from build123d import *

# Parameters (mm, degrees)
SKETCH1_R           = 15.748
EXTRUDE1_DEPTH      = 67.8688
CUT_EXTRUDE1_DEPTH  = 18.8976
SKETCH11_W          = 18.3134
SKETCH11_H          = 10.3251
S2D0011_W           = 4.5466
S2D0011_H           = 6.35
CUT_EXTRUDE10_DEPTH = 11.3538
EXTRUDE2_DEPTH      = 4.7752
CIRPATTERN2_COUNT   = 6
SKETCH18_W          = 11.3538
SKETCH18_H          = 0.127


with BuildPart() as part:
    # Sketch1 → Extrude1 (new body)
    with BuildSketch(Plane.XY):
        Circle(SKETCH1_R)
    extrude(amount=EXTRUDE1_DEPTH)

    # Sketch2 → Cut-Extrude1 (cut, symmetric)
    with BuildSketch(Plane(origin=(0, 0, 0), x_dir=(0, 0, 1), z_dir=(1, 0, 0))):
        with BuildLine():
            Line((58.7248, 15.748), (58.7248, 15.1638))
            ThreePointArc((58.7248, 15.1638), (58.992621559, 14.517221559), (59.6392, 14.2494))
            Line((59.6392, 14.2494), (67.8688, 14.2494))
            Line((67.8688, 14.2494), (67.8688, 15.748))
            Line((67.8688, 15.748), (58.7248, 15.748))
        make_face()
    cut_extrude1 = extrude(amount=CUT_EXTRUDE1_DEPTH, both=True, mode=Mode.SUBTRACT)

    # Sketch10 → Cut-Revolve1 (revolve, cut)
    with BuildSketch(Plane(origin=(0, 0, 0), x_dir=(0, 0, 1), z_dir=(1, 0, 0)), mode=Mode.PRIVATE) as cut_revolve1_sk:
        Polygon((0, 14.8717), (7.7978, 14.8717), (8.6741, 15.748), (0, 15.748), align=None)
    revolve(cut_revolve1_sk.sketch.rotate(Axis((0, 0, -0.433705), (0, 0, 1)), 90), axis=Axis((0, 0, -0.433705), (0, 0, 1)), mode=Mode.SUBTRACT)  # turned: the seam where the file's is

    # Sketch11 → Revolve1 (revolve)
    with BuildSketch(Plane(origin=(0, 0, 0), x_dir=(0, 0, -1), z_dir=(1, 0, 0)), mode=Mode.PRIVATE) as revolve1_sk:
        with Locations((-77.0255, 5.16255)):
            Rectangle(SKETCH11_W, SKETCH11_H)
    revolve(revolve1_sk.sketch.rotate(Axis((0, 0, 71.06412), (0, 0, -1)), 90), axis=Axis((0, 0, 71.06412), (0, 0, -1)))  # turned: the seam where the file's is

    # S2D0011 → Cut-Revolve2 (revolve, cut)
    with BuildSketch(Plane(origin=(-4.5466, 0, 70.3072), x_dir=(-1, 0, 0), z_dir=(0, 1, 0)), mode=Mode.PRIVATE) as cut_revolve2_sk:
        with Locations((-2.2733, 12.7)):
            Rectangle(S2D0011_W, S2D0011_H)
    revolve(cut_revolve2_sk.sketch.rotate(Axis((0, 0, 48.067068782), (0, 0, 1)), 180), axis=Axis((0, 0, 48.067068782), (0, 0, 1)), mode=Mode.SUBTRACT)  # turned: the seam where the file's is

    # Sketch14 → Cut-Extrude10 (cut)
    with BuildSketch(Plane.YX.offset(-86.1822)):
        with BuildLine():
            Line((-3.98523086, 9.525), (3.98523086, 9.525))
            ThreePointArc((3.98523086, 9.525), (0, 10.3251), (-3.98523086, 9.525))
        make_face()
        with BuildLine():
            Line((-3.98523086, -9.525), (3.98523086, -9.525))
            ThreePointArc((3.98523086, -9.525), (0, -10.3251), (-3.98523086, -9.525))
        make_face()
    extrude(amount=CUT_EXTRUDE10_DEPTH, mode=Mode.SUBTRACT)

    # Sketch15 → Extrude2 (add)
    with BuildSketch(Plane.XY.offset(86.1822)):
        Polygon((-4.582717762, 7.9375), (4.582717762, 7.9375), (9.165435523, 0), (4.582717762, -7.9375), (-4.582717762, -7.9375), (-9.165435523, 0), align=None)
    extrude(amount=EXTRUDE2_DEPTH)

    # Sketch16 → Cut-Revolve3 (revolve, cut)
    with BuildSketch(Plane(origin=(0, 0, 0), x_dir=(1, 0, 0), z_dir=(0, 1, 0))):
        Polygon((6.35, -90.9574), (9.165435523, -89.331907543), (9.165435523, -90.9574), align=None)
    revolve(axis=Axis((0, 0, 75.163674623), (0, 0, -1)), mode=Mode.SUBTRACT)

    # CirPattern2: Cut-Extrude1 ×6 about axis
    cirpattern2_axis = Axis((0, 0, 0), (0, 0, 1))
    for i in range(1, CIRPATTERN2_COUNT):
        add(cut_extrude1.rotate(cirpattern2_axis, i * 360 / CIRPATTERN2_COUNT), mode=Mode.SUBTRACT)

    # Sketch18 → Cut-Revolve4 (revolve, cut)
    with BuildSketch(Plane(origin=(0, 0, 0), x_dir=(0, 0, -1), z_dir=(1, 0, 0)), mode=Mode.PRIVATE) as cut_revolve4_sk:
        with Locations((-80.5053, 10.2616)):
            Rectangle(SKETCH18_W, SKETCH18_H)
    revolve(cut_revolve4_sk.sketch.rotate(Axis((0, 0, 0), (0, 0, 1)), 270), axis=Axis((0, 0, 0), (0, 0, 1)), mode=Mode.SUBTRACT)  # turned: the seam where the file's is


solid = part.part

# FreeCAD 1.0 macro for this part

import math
import FreeCAD as App
import Part
import Sketcher
from FreeCAD import Vector
Q = App.Units.Quantity


def add_polygon(sketch, points):
    """Adds a closed chain of lines whose ends are joined by coincident constraints."""
    first, n = sketch.GeometryCount, len(points)
    for a, b in zip(points, points[1:] + points[:1]):
        sketch.addGeometry(Part.LineSegment(App.Vector(*a, 0), App.Vector(*b, 0)), False)
    for i in range(n):
        sketch.addConstraint(Sketcher.Constraint("Coincident", first + i, 2, first + (i + 1) % n, 1))

doc = App.newDocument("Part")
body = doc.addObject("PartDesign::Body", "Body")

sketch1 = body.newObject("Sketcher::SketchObject", "Sketch")
sketch1.AttachmentSupport = (doc.getObject("XY_Plane"), [""])
sketch1.MapMode = "FlatFace"
sketch1.addGeometry(Part.Circle(Vector(0, 0, 0), Vector(0, 0, 1), 16), False)
sketch1.addConstraint([
    Sketcher.Constraint("Coincident", 0, 3, -1, 1),
    Sketcher.Constraint("Diameter", 0, Q("1.24 in")),
])
pad1 = body.newObject("PartDesign::Pad", "Pad")
pad1.Profile = sketch1
pad1.Length = Q("2.672 in")

sketch2 = body.newObject("Sketcher::SketchObject", "Sketch001")
sketch2.AttachmentSupport = (doc.getObject("YZ_Plane"), [""])
sketch2.MapMode = "FlatFace"
sketch2.addGeometry([
    Part.LineSegment(Vector(-15.7, 58.7, 0), Vector(-15.2, 58.7, 0)),
    Part.ArcOfCircle(Part.Circle(Vector(-15.2, 59.6, 0), Vector(0, 0, 1), 0.9), math.radians(-90), math.radians(0)),
    Part.LineSegment(Vector(-14.2, 59.6, 0), Vector(-14.2, 67.9, 0)),
    Part.LineSegment(Vector(-14.2, 67.9, 0), Vector(-15.7, 67.9, 0)),
    Part.LineSegment(Vector(-15.7, 67.9, 0), Vector(-15.7, 58.7, 0)),
], False)
sketch2.addConstraint([
    Sketcher.Constraint("Tangent", 0, 2, 1, 1),
    Sketcher.Constraint("Tangent", 1, 2, 2, 1),
    Sketcher.Constraint("Coincident", 2, 2, 3, 1),
    Sketcher.Constraint("Coincident", 3, 2, 4, 1),
    Sketcher.Constraint("Coincident", 4, 2, 0, 1),
    Sketcher.Constraint("Horizontal", 0),
    Sketcher.Constraint("Vertical", 2),
    Sketcher.Constraint("Horizontal", 3),
    Sketcher.Constraint("Vertical", 4),
    Sketcher.Constraint("Radius", 1, Q("0.036 in")),
    Sketcher.Constraint("DistanceY", 4, 2, 4, 1, Q("0.36 in")),
    Sketcher.Constraint("DistanceX", 0, 1, 0, 2, Q("0.023 in")),
    Sketcher.Constraint("DistanceX", 3, 2, -1, 1, Q("0.62 in")),
    Sketcher.Constraint("DistanceY", -1, 1, 1, 3, Q("2.348 in")),
])
pocket1 = body.newObject("PartDesign::Pocket", "Pocket")
pocket1.Profile = sketch2
pocket1.Length = Q("1.488 in")
pocket1.Midplane = True

sketch3 = body.newObject("Sketcher::SketchObject", "Sketch002")
sketch3.AttachmentSupport = (doc.getObject("YZ_Plane"), [""])
sketch3.MapMode = "FlatFace"
add_polygon(sketch3, [(-14.9, 0), (-14.9, 7.8), (-15.7, 8.7), (-15.7, 0)])
sketch3.addConstraint([
    Sketcher.Constraint("Vertical", 0),
    Sketcher.Constraint("Vertical", 2),
    Sketcher.Constraint("Horizontal", 3),
    Sketcher.Constraint("PointOnObject", 2, 2, -1),
    Sketcher.Constraint("Angle", 1, Q("135 deg")),
    Sketcher.Constraint("DistanceY", 0, 1, 0, 2, Q("0.307 in")),
    Sketcher.Constraint("DistanceX", 1, 2, -1, 1, Q("0.62 in")),
    Sketcher.Constraint("DistanceX", 3, 1, 3, 2, Q("0.0345 in")),
])
groove = body.newObject("PartDesign::Groove", "Groove")
groove.Profile = sketch3
groove.ReferenceAxis = (sketch3, ["V_Axis"])
groove.Angle = 360

sketch4 = body.newObject("Sketcher::SketchObject", "Sketch003")
sketch4.AttachmentSupport = (doc.getObject("YZ_Plane"), [""])
sketch4.MapMode = "FlatFace"
add_polygon(sketch4, [(10, 86), (0, 86), (0, 68), (10, 68)])
sketch4.addConstraint([
    Sketcher.Constraint("Horizontal", 0),
    Sketcher.Constraint("Vertical", 1),
    Sketcher.Constraint("Horizontal", 2),
    Sketcher.Constraint("Vertical", 3),
    Sketcher.Constraint("PointOnObject", 0, 2, -2),
    Sketcher.Constraint("DistanceY", 1, 2, 1, 1, Q("0.721 in")),
    Sketcher.Constraint("DistanceX", 0, 2, 0, 1, Q("0.4065 in")),
    Sketcher.Constraint("DistanceY", -1, 1, 0, 2, Q("3.393 in")),
])
revolution = body.newObject("PartDesign::Revolution", "Revolution")
revolution.Profile = sketch4
revolution.ReferenceAxis = (sketch4, ["V_Axis"])
revolution.Angle = 360

sketch5 = body.newObject("Sketcher::SketchObject", "Sketch004")
sketch5.AttachmentSupport = (doc.getObject("XZ_Plane"), [""])
sketch5.MapMode = "FlatFace"
add_polygon(sketch5, [(0, 86.2), (0, 79.8), (-4.5, 79.8), (-4.5, 86.2)])
sketch5.addConstraint([
    Sketcher.Constraint("Vertical", 0),
    Sketcher.Constraint("Horizontal", 1),
    Sketcher.Constraint("Vertical", 2),
    Sketcher.Constraint("Horizontal", 3),
    Sketcher.Constraint("PointOnObject", 0, 2, -2),
    Sketcher.Constraint("DistanceY", 0, 2, 0, 1, Q("0.25 in")),
    Sketcher.Constraint("DistanceX", 1, 2, 1, 1, Q("0.179 in")),
    Sketcher.Constraint("DistanceY", -1, 1, 0, 2, Q("3.143 in")),
])
groove2 = body.newObject("PartDesign::Groove", "Groove001")
groove2.Profile = sketch5
groove2.ReferenceAxis = (sketch5, ["V_Axis"])
groove2.Angle = 360

sketch6 = body.newObject("Sketcher::SketchObject", "Sketch005")
sketch6.AttachmentSupport = (doc.getObject("XY_Plane"), [""])
sketch6.MapMode = "FlatFace"
sketch6.AttachmentOffset = App.Placement(Vector(0, 0, 3.393 * 25.4), App.Rotation())
sketch6.addGeometry([
    Part.LineSegment(Vector(10, -4, 0), Vector(10, 4, 0)),
    Part.ArcOfCircle(Part.Circle(Vector(0, 0, 0), Vector(0, 0, 1), 10), math.radians(-23), math.radians(23)),
    Part.LineSegment(Vector(-10, 4, 0), Vector(-10, -4, 0)),
    Part.ArcOfCircle(Part.Circle(Vector(0, 0, 0), Vector(0, 0, 1), 10), math.radians(157), math.radians(203)),
], False)
sketch6.addConstraint([
    Sketcher.Constraint("Coincident", 0, 1, 1, 1),
    Sketcher.Constraint("Coincident", 1, 2, 0, 2),
    Sketcher.Constraint("Coincident", 2, 1, 3, 1),
    Sketcher.Constraint("Coincident", 3, 2, 2, 2),
    Sketcher.Constraint("Vertical", 0),
    Sketcher.Constraint("Vertical", 2),
    Sketcher.Constraint("Coincident", 1, 3, -1, 1),
    Sketcher.Constraint("Coincident", 3, 3, -1, 1),
    Sketcher.Constraint("Equal", 1, 3),
    Sketcher.Constraint("Horizontal", 1, 2, 2, 1),
    Sketcher.Constraint("Radius", 1, Q("0.4065 in")),
    Sketcher.Constraint("DistanceX", 2, 1, 1, 2, Q("0.75 in")),
])
pocket2 = body.newObject("PartDesign::Pocket", "Pocket001")
pocket2.Profile = sketch6
pocket2.Length = Q("0.447 in")

sketch7 = body.newObject("Sketcher::SketchObject", "Sketch006")
sketch7.AttachmentSupport = (doc.getObject("XY_Plane"), [""])
sketch7.MapMode = "FlatFace"
sketch7.AttachmentOffset = App.Placement(Vector(0, 0, 3.393 * 25.4), App.Rotation())
add_polygon(sketch7, [(5, 8), (-5, 8), (-9, 0), (-5, -8), (5, -8), (9, 0)])
sketch7.addConstraint([
    Sketcher.Constraint("Horizontal", 0),
    Sketcher.Constraint("Horizontal", 3),
    Sketcher.Constraint("Symmetric", 0, 2, 3, 2, -1, 1),
    Sketcher.Constraint("Symmetric", 1, 2, 4, 2, -1, 1),
    Sketcher.Constraint("PointOnObject", 1, 2, -1),
    Sketcher.Constraint("Parallel", 2, 5),
    Sketcher.Constraint("Vertical", 0, 2, 2, 2),
    Sketcher.Constraint("Angle", 1, Q("-120 deg")),
    Sketcher.Constraint("DistanceY", -1, 1, 0, 2, Q("0.3125 in")),
    Sketcher.Constraint("DistanceX", 0, 2, 0, 1, 9.165436),
])
pad2 = body.newObject("PartDesign::Pad", "Pad001")
pad2.Profile = sketch7
pad2.Length = Q("0.188 in")

sketch8 = body.newObject("Sketcher::SketchObject", "Sketch007")
sketch8.AttachmentSupport = (doc.getObject("XZ_Plane"), [""])
sketch8.MapMode = "FlatFace"
add_polygon(sketch8, [(9.2, 89.3), (6.3, 91), (9.2, 91)])
sketch8.addConstraint([
    Sketcher.Constraint("Horizontal", 1),
    Sketcher.Constraint("Vertical", 2),
    Sketcher.Constraint("Angle", 0, Q("150 deg")),
    Sketcher.Constraint("DistanceX", -1, 1, 0, 2, Q("0.25 in")),
    Sketcher.Constraint("DistanceY", -1, 1, 0, 2, Q("3.581 in")),
    Sketcher.Constraint("DistanceX", 1, 1, 1, 2, 2.815436),
])
groove3 = body.newObject("PartDesign::Groove", "Groove002")
groove3.Profile = sketch8
groove3.ReferenceAxis = (sketch8, ["V_Axis"])
groove3.Angle = 360
doc.recompute()

polarpattern = body.newObject("PartDesign::PolarPattern", "PolarPattern")
polarpattern.Originals = [pocket1]
polarpattern.Axis = (doc.getObject("Z_Axis"), [""])
polarpattern.Angle = 360
polarpattern.Occurrences = 6
body.Tip = polarpattern

sketch9 = body.newObject("Sketcher::SketchObject", "Sketch008")
sketch9.AttachmentSupport = (doc.getObject("YZ_Plane"), [""])
sketch9.MapMode = "FlatFace"
add_polygon(sketch9, [(10.33, 86.18), (10.2, 86.18), (10.2, 74.83), (10.33, 74.83)])
sketch9.addConstraint([
    Sketcher.Constraint("Horizontal", 0),
    Sketcher.Constraint("Vertical", 1),
    Sketcher.Constraint("Horizontal", 2),
    Sketcher.Constraint("Vertical", 3),
    Sketcher.Constraint("DistanceX", 0, 2, 0, 1, Q("0.005 in")),
    Sketcher.Constraint("DistanceY", 1, 2, 1, 1, Q("0.447 in")),
    Sketcher.Constraint("DistanceY", -1, 1, 0, 2, Q("3.393 in")),
    Sketcher.Constraint("DistanceX", -1, 1, 0, 2, Q("0.4015 in")),
])
groove4 = body.newObject("PartDesign::Groove", "Groove003")
groove4.Profile = sketch9
groove4.ReferenceAxis = (sketch9, ["V_Axis"])
groove4.Angle = 360

doc.recompute()
